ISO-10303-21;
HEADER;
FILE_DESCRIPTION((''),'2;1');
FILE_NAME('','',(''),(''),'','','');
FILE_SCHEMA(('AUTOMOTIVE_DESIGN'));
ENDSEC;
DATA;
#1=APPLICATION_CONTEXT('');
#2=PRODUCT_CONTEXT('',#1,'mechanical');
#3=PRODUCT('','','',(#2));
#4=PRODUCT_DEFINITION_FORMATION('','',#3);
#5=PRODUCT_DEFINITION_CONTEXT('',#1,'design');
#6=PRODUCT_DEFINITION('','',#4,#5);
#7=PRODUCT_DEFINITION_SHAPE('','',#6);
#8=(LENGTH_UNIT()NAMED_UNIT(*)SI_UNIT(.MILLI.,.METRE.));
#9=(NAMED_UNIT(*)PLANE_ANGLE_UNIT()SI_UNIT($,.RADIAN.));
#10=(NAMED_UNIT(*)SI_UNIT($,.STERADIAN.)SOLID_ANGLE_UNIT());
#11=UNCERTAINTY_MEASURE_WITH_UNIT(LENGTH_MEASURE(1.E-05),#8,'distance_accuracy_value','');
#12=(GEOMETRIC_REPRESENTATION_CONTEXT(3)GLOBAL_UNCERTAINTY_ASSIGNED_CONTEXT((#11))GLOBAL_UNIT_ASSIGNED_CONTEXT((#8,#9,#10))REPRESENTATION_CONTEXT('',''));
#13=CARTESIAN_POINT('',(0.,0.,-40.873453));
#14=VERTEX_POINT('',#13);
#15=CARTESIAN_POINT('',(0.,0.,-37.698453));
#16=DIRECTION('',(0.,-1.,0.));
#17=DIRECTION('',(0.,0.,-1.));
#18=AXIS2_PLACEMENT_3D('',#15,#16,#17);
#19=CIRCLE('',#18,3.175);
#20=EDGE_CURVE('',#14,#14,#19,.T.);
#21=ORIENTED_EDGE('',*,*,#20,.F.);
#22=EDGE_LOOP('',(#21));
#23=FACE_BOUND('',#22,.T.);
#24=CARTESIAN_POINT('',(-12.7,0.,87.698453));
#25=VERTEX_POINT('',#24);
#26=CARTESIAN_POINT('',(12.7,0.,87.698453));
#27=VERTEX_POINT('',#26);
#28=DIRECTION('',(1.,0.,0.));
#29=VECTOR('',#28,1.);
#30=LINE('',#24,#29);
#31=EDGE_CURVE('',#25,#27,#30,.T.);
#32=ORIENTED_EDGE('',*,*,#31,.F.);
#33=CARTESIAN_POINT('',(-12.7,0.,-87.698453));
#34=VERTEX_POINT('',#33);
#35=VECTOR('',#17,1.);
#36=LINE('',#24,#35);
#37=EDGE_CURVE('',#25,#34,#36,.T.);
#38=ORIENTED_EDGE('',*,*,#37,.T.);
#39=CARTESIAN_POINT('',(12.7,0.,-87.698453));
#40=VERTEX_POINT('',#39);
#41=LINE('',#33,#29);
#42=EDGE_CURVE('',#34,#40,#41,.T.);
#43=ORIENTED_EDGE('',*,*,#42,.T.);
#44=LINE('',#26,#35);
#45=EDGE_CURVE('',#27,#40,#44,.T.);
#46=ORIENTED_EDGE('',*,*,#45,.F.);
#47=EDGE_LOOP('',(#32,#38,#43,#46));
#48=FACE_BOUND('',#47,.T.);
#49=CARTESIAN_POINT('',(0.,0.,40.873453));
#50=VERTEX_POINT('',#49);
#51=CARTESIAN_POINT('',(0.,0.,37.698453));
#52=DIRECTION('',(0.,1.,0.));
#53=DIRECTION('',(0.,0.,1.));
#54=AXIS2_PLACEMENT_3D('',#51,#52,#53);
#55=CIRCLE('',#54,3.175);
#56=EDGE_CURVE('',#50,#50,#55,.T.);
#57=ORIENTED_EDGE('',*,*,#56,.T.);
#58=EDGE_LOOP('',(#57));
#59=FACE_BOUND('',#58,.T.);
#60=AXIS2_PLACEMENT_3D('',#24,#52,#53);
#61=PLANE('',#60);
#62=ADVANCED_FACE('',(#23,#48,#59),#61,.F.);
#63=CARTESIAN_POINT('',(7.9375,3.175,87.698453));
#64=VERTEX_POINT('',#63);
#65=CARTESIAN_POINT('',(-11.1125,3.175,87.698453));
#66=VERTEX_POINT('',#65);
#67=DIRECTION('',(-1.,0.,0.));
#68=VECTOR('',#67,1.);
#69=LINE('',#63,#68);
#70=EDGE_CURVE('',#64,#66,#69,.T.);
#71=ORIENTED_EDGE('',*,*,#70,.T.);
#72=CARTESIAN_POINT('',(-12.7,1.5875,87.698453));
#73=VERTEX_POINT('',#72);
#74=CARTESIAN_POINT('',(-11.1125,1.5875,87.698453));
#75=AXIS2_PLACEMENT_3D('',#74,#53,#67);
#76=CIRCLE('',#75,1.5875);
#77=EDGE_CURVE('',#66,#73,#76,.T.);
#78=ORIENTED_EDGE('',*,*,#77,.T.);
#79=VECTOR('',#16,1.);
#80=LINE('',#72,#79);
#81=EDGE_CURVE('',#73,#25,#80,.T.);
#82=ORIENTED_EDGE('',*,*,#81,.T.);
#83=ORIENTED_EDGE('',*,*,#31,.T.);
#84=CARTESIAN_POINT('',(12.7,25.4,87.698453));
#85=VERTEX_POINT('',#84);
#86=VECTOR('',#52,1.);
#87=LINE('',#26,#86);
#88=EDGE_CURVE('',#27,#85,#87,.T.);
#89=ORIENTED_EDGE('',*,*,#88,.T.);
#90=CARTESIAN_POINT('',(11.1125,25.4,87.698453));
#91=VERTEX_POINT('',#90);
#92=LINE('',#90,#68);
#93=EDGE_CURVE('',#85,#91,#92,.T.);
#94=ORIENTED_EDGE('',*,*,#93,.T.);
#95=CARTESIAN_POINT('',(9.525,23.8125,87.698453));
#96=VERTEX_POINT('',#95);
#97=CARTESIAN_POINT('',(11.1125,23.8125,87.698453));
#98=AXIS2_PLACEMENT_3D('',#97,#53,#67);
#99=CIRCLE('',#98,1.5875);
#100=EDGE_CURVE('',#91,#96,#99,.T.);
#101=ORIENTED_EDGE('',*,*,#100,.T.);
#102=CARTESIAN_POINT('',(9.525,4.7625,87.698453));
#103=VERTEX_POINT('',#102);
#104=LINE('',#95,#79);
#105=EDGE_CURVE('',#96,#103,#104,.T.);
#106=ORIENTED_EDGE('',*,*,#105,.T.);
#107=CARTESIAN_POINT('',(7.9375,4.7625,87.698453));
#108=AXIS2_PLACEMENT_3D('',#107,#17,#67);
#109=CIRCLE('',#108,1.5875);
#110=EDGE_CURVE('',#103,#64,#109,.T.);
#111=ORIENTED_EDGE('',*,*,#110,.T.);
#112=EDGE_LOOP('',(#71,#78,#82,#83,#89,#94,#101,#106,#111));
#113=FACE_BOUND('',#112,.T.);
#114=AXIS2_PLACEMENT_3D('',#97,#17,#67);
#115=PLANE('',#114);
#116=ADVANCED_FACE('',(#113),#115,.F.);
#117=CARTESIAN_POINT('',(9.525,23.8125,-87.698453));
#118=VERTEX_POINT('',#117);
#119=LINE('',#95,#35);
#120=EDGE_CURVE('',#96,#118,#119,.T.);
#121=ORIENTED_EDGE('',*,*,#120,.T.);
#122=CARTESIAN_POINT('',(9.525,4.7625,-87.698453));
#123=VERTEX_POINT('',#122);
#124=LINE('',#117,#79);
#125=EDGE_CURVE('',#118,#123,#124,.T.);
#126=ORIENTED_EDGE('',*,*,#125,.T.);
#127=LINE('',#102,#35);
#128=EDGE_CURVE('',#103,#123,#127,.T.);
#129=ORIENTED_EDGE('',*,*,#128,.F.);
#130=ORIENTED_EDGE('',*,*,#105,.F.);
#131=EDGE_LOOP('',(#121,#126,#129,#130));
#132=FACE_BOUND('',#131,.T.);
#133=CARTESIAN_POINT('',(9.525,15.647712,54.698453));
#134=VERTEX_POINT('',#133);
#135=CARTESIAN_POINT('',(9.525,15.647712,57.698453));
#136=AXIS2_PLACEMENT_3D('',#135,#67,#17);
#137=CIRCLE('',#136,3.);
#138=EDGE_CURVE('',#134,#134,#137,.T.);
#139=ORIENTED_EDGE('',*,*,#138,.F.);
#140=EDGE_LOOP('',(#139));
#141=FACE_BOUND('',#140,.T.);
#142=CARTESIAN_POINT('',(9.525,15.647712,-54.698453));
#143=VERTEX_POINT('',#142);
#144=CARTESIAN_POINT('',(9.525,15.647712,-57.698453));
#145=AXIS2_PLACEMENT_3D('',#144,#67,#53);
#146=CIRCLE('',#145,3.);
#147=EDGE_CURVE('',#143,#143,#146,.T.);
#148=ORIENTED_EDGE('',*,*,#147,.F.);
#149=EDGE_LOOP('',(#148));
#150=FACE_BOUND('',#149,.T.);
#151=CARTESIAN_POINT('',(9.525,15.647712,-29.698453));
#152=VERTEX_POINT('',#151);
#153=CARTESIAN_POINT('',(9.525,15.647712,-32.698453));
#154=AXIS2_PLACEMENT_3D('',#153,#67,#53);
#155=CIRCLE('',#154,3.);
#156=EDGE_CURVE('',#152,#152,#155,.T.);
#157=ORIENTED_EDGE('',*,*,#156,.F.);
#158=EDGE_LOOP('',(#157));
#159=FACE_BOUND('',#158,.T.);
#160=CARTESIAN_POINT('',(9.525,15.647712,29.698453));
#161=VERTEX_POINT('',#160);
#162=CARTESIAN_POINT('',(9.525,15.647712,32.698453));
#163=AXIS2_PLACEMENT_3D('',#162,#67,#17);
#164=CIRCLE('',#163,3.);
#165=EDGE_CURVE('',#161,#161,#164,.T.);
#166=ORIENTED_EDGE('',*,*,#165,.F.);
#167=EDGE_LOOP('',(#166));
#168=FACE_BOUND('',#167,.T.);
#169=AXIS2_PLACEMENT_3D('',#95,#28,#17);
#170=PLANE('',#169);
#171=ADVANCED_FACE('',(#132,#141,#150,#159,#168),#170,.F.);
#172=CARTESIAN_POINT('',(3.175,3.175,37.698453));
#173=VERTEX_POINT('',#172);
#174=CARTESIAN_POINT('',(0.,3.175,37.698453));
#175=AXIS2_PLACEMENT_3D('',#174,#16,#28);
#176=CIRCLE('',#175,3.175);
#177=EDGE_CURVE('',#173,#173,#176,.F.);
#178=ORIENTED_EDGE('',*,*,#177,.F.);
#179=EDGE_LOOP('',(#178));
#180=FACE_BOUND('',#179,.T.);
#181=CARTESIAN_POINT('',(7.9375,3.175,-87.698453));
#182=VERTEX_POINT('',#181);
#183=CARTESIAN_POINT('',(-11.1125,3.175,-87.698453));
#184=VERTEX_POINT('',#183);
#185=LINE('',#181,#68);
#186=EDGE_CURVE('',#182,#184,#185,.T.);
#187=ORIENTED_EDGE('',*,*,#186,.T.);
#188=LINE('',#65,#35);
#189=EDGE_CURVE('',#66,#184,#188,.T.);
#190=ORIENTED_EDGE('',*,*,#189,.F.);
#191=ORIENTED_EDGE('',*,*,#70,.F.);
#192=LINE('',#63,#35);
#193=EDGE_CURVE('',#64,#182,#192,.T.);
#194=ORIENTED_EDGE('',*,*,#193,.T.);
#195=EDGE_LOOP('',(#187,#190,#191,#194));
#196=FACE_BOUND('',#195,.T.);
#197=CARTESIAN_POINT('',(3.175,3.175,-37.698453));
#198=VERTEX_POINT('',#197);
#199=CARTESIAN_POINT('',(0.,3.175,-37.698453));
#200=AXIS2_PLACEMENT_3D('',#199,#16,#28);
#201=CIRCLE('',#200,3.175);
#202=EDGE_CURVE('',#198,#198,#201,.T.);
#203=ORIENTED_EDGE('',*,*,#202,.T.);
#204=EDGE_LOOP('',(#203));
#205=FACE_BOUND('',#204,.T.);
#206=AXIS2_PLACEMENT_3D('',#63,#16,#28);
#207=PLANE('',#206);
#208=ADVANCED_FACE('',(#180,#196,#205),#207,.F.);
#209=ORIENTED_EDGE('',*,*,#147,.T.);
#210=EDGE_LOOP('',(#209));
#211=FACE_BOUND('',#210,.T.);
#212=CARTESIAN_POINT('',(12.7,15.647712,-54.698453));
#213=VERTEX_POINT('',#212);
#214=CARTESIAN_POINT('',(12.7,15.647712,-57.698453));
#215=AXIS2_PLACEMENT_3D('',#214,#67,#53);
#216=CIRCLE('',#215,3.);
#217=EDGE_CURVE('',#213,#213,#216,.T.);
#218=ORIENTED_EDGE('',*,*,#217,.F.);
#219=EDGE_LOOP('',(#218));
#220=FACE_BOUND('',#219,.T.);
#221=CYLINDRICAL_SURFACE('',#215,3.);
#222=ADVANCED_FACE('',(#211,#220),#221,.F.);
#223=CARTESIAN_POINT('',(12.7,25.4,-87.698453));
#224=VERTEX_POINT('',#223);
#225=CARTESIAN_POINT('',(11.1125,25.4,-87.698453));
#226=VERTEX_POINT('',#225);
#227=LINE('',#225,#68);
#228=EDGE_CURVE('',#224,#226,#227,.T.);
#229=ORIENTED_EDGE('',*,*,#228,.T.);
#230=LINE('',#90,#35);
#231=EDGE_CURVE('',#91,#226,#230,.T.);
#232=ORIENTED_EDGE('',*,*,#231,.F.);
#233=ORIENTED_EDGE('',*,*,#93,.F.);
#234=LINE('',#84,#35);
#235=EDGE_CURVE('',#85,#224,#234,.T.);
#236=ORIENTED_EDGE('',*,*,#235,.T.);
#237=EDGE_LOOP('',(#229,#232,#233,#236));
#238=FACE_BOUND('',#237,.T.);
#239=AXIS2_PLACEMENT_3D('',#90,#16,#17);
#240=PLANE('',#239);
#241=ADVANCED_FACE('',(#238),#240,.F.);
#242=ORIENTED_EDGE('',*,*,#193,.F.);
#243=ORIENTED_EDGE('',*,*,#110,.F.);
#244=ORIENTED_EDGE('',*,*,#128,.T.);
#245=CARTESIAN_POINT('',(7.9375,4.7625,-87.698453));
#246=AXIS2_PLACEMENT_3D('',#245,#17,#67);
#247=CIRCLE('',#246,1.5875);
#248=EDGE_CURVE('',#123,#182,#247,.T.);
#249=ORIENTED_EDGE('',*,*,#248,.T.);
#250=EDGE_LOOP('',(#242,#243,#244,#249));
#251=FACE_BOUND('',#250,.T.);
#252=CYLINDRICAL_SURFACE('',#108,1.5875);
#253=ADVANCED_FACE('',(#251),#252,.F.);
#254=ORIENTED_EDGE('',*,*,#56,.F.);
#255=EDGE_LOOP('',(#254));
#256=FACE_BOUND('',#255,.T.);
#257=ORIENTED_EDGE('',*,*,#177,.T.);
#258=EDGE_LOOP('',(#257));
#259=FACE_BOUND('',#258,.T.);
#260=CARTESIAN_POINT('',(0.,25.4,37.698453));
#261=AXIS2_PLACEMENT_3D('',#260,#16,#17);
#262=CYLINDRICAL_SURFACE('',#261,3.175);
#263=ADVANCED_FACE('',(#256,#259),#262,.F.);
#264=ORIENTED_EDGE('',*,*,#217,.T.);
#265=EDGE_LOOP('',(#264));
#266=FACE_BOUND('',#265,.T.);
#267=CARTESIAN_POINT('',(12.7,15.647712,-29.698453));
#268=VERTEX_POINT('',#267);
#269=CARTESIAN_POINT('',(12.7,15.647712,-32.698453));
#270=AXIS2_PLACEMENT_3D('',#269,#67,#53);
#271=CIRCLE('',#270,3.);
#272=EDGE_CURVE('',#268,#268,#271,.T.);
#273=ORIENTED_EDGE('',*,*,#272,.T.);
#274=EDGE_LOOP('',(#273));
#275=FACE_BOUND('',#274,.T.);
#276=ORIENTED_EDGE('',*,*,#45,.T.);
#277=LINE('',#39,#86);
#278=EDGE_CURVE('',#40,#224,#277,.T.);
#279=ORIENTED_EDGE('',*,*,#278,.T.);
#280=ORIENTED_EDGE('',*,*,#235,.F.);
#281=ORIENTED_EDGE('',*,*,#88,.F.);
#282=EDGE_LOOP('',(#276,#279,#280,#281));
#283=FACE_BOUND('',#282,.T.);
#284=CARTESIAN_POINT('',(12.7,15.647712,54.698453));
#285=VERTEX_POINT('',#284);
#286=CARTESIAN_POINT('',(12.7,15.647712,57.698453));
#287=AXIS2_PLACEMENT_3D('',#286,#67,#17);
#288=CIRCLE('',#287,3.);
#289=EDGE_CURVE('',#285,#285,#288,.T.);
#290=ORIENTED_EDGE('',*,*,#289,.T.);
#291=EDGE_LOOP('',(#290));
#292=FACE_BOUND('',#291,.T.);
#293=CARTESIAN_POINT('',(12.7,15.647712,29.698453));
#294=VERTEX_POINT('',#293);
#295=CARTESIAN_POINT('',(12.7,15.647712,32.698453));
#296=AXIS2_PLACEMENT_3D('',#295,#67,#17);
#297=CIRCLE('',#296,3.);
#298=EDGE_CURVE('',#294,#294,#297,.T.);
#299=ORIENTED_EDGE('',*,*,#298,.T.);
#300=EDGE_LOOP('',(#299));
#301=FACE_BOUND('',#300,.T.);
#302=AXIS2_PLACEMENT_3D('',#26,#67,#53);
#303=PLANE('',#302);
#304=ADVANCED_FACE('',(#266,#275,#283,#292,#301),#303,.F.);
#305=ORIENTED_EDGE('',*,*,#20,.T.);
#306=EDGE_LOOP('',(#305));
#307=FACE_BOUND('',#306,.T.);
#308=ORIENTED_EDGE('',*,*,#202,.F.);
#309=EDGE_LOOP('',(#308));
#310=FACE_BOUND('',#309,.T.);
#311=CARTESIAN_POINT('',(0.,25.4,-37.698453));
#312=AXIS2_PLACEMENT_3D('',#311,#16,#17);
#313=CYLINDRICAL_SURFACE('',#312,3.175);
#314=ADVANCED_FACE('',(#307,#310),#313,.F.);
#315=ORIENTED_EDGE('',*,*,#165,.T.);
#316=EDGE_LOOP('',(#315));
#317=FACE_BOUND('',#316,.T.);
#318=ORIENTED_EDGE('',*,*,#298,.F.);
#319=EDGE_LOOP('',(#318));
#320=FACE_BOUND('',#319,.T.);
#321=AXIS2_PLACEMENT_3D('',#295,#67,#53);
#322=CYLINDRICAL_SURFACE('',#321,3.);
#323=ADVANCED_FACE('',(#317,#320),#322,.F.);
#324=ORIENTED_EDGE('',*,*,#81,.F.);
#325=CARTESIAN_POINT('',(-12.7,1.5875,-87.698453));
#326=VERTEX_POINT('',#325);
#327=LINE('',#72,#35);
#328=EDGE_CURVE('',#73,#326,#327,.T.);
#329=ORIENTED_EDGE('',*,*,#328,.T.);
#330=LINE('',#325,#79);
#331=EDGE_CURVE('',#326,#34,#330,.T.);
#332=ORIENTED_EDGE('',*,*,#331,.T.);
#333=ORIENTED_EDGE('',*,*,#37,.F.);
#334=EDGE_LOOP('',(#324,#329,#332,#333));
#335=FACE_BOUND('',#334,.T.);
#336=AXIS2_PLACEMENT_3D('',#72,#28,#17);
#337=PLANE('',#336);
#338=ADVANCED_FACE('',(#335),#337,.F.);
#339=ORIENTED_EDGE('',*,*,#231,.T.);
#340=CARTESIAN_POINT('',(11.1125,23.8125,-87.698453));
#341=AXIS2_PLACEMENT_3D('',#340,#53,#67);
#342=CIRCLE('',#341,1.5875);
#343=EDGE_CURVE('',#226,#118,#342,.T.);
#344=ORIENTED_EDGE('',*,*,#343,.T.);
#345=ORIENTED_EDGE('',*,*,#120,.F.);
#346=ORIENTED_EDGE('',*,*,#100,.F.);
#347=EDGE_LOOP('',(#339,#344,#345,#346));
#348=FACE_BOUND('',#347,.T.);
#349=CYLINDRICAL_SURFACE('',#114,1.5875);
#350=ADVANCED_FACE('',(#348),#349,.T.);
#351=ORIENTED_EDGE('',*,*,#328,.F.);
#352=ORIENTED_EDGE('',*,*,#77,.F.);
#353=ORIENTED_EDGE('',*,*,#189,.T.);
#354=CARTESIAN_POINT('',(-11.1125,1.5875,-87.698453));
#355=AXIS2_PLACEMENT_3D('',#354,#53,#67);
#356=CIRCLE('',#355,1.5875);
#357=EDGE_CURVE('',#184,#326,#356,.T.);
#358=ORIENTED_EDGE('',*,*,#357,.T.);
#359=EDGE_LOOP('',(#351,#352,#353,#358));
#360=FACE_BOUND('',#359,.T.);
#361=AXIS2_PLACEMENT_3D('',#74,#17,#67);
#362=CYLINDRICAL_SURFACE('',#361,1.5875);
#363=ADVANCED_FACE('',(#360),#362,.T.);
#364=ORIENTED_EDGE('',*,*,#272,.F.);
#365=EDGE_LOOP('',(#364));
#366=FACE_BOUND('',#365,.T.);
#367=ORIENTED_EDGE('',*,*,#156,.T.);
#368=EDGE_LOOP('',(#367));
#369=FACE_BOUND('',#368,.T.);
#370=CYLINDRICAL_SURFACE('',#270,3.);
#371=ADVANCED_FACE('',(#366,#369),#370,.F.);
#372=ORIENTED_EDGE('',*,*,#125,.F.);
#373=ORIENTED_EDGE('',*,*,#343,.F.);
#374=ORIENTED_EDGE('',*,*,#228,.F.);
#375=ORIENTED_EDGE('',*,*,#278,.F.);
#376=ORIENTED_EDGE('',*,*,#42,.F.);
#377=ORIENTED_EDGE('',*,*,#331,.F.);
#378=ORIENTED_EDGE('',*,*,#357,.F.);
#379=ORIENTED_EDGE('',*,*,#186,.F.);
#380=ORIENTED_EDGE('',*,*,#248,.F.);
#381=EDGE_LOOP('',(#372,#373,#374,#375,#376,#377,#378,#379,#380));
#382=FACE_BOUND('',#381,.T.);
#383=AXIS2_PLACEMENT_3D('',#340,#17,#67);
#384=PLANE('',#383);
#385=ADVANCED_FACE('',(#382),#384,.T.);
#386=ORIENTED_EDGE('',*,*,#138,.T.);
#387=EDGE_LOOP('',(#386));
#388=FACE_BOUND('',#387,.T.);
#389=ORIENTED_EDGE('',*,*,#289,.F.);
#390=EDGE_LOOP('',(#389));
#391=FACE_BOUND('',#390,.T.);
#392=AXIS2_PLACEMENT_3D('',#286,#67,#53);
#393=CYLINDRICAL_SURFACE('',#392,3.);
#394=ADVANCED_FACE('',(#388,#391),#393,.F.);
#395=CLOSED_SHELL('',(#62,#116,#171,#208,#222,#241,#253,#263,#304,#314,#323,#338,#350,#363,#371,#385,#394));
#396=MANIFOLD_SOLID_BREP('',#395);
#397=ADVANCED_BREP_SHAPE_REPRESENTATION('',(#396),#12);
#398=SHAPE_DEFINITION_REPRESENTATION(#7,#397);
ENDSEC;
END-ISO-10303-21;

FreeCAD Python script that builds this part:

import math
import FreeCAD as App
import Part
import Sketcher
Q = App.Units.Quantity

doc = App.newDocument("Part")
body = doc.addObject("PartDesign::Body", "Body")

sketch1 = body.newObject("Sketcher::SketchObject", "Sketch")
sketch1.AttachmentSupport = (doc.getObject("XY_Plane"), [""])
sketch1.MapMode = "FlatFace"
sketch1.addGeometry(Part.LineSegment(App.Vector(-12.7, 0, 0), App.Vector(12.7, 0, 0)), False)
sketch1.addGeometry(Part.LineSegment(App.Vector(12.7, 0, 0), App.Vector(12.7, 25.4, 0)), False)
sketch1.addGeometry(Part.LineSegment(App.Vector(12.7, 25.4, 0), App.Vector(11.1, 25.4, 0)), False)
sketch1.addGeometry(Part.ArcOfCircle(Part.Circle(App.Vector(11.1, 23.8, 0), App.Vector(0, 0, 1), 1.6), math.radians(90), math.radians(180)), False)
sketch1.addGeometry(Part.LineSegment(App.Vector(9.5, 23.8, 0), App.Vector(9.5, 4.8, 0)), False)
sketch1.addGeometry(Part.ArcOfCircle(Part.Circle(App.Vector(7.9, 4.8, 0), App.Vector(0, 0, 1), 1.6), math.radians(-90), math.radians(0)), False)
sketch1.addGeometry(Part.LineSegment(App.Vector(7.9, 3.2, 0), App.Vector(-11.1, 3.2, 0)), False)
sketch1.addGeometry(Part.ArcOfCircle(Part.Circle(App.Vector(-11.1, 1.6, 0), App.Vector(0, 0, 1), 1.6), math.radians(90), math.radians(180)), False)
sketch1.addGeometry(Part.LineSegment(App.Vector(-12.7, 1.6, 0), App.Vector(-12.7, 0, 0)), False)
sketch1.addConstraint(Sketcher.Constraint("Coincident", 0, 2, 1, 1))
sketch1.addConstraint(Sketcher.Constraint("Coincident", 1, 2, 2, 1))
sketch1.addConstraint(Sketcher.Constraint("Tangent", 2, 2, 3, 1))
sketch1.addConstraint(Sketcher.Constraint("Tangent", 3, 2, 4, 1))
sketch1.addConstraint(Sketcher.Constraint("Tangent", 4, 2, 5, 2))
sketch1.addConstraint(Sketcher.Constraint("Tangent", 5, 1, 6, 1))
sketch1.addConstraint(Sketcher.Constraint("Tangent", 6, 2, 7, 1))
sketch1.addConstraint(Sketcher.Constraint("Tangent", 7, 2, 8, 1))
sketch1.addConstraint(Sketcher.Constraint("Coincident", 8, 2, 0, 1))
sketch1.addConstraint(Sketcher.Constraint("Horizontal", 0))
sketch1.addConstraint(Sketcher.Constraint("Vertical", 1))
sketch1.addConstraint(Sketcher.Constraint("Horizontal", 2))
sketch1.addConstraint(Sketcher.Constraint("Vertical", 4))
sketch1.addConstraint(Sketcher.Constraint("Horizontal", 6))
sketch1.addConstraint(Sketcher.Constraint("Vertical", 8))
sketch1.addConstraint(Sketcher.Constraint("Equal", 3, 5))
sketch1.addConstraint(Sketcher.Constraint("Equal", 5, 7))
sketch1.addConstraint(Sketcher.Constraint("Symmetric", 0, 2, 8, 2, -1, 1))
sketch1.addConstraint(Sketcher.Constraint("Equal", 0, 1))
sketch1.addConstraint(Sketcher.Constraint("Equal", 6, 4))
sketch1.addConstraint(Sketcher.Constraint("DistanceX", 0, 1, 0, 2, Q("1 in")))
sketch1.addConstraint(Sketcher.Constraint("Radius", 3, Q("0.0625 in")))
sketch1.addConstraint(Sketcher.Constraint("DistanceX", 6, 2, 6, 1, Q("0.75 in")))
pad1 = body.newObject("PartDesign::Pad", "Pad")
pad1.Profile = sketch1
pad1.Length = 175.396906
pad1.Midplane = True

sketch2 = body.newObject("Sketcher::SketchObject", "Sketch001")
sketch2.AttachmentSupport = (doc.getObject("XZ_Plane"), [""])
sketch2.MapMode = "FlatFace"
sketch2.addGeometry(Part.Circle(App.Vector(0, -37.7, 0), App.Vector(0, 0, 1), 3.2), False)
sketch2.addGeometry(Part.Circle(App.Vector(0, 37.7, 0), App.Vector(0, 0, 1), 3.2), False)
sketch2.addConstraint(Sketcher.Constraint("Equal", 0, 1))
sketch2.addConstraint(Sketcher.Constraint("Symmetric", 0, 3, 1, 3, -1, 1))
sketch2.addConstraint(Sketcher.Constraint("PointOnObject", 0, 3, -2))
sketch2.addConstraint(Sketcher.Constraint("Diameter", 0, Q("0.25 in")))
sketch2.addConstraint(Sketcher.Constraint("DistanceY", 0, 3, -1, 1, 37.698453))
pocket1 = body.newObject("PartDesign::Pocket", "Pocket")
pocket1.Profile = sketch2
pocket1.Type = "ThroughAll"

sketch3 = body.newObject("Sketcher::SketchObject", "Sketch002")
sketch3.AttachmentSupport = (doc.getObject("YZ_Plane"), [""])
sketch3.MapMode = "FlatFace"
sketch3.AttachmentOffset = App.Placement(App.Vector(0, 0, 0.375 * 25.4), App.Rotation())
sketch3.addGeometry(Part.Circle(App.Vector(15.6, -57.7, 0), App.Vector(0, 0, 1), 3), False)
sketch3.addGeometry(Part.Circle(App.Vector(15.6, -32.7, 0), App.Vector(0, 0, 1), 3), False)
sketch3.addGeometry(Part.Circle(App.Vector(15.6, 57.7, 0), App.Vector(0, 0, 1), 3), False)
sketch3.addGeometry(Part.Circle(App.Vector(15.6, 32.7, 0), App.Vector(0, 0, 1), 3), False)
sketch3.addConstraint(Sketcher.Constraint("Equal", 0, 1))
sketch3.addConstraint(Sketcher.Constraint("Equal", 1, 2))
sketch3.addConstraint(Sketcher.Constraint("Equal", 2, 3))
sketch3.addConstraint(Sketcher.Constraint("Symmetric", 0, 3, 2, 3, -1))
sketch3.addConstraint(Sketcher.Constraint("Symmetric", 1, 3, 3, 3, -1))
sketch3.addConstraint(Sketcher.Constraint("Vertical", 0, 3, 1, 3))
sketch3.addConstraint(Sketcher.Constraint("Diameter", 0, 6.0))
sketch3.addConstraint(Sketcher.Constraint("DistanceY", 0, 3, 1, 3, 25.0))
sketch3.addConstraint(Sketcher.Constraint("DistanceX", -1, 1, 0, 3, 15.647712))
sketch3.addConstraint(Sketcher.Constraint("DistanceY", 0, 3, -1, 1, 57.698453))
pocket2 = body.newObject("PartDesign::Pocket", "Pocket001")
pocket2.Profile = sketch3
pocket2.Type = "ThroughAll"
pocket2.Reversed = True

doc.recompute()
